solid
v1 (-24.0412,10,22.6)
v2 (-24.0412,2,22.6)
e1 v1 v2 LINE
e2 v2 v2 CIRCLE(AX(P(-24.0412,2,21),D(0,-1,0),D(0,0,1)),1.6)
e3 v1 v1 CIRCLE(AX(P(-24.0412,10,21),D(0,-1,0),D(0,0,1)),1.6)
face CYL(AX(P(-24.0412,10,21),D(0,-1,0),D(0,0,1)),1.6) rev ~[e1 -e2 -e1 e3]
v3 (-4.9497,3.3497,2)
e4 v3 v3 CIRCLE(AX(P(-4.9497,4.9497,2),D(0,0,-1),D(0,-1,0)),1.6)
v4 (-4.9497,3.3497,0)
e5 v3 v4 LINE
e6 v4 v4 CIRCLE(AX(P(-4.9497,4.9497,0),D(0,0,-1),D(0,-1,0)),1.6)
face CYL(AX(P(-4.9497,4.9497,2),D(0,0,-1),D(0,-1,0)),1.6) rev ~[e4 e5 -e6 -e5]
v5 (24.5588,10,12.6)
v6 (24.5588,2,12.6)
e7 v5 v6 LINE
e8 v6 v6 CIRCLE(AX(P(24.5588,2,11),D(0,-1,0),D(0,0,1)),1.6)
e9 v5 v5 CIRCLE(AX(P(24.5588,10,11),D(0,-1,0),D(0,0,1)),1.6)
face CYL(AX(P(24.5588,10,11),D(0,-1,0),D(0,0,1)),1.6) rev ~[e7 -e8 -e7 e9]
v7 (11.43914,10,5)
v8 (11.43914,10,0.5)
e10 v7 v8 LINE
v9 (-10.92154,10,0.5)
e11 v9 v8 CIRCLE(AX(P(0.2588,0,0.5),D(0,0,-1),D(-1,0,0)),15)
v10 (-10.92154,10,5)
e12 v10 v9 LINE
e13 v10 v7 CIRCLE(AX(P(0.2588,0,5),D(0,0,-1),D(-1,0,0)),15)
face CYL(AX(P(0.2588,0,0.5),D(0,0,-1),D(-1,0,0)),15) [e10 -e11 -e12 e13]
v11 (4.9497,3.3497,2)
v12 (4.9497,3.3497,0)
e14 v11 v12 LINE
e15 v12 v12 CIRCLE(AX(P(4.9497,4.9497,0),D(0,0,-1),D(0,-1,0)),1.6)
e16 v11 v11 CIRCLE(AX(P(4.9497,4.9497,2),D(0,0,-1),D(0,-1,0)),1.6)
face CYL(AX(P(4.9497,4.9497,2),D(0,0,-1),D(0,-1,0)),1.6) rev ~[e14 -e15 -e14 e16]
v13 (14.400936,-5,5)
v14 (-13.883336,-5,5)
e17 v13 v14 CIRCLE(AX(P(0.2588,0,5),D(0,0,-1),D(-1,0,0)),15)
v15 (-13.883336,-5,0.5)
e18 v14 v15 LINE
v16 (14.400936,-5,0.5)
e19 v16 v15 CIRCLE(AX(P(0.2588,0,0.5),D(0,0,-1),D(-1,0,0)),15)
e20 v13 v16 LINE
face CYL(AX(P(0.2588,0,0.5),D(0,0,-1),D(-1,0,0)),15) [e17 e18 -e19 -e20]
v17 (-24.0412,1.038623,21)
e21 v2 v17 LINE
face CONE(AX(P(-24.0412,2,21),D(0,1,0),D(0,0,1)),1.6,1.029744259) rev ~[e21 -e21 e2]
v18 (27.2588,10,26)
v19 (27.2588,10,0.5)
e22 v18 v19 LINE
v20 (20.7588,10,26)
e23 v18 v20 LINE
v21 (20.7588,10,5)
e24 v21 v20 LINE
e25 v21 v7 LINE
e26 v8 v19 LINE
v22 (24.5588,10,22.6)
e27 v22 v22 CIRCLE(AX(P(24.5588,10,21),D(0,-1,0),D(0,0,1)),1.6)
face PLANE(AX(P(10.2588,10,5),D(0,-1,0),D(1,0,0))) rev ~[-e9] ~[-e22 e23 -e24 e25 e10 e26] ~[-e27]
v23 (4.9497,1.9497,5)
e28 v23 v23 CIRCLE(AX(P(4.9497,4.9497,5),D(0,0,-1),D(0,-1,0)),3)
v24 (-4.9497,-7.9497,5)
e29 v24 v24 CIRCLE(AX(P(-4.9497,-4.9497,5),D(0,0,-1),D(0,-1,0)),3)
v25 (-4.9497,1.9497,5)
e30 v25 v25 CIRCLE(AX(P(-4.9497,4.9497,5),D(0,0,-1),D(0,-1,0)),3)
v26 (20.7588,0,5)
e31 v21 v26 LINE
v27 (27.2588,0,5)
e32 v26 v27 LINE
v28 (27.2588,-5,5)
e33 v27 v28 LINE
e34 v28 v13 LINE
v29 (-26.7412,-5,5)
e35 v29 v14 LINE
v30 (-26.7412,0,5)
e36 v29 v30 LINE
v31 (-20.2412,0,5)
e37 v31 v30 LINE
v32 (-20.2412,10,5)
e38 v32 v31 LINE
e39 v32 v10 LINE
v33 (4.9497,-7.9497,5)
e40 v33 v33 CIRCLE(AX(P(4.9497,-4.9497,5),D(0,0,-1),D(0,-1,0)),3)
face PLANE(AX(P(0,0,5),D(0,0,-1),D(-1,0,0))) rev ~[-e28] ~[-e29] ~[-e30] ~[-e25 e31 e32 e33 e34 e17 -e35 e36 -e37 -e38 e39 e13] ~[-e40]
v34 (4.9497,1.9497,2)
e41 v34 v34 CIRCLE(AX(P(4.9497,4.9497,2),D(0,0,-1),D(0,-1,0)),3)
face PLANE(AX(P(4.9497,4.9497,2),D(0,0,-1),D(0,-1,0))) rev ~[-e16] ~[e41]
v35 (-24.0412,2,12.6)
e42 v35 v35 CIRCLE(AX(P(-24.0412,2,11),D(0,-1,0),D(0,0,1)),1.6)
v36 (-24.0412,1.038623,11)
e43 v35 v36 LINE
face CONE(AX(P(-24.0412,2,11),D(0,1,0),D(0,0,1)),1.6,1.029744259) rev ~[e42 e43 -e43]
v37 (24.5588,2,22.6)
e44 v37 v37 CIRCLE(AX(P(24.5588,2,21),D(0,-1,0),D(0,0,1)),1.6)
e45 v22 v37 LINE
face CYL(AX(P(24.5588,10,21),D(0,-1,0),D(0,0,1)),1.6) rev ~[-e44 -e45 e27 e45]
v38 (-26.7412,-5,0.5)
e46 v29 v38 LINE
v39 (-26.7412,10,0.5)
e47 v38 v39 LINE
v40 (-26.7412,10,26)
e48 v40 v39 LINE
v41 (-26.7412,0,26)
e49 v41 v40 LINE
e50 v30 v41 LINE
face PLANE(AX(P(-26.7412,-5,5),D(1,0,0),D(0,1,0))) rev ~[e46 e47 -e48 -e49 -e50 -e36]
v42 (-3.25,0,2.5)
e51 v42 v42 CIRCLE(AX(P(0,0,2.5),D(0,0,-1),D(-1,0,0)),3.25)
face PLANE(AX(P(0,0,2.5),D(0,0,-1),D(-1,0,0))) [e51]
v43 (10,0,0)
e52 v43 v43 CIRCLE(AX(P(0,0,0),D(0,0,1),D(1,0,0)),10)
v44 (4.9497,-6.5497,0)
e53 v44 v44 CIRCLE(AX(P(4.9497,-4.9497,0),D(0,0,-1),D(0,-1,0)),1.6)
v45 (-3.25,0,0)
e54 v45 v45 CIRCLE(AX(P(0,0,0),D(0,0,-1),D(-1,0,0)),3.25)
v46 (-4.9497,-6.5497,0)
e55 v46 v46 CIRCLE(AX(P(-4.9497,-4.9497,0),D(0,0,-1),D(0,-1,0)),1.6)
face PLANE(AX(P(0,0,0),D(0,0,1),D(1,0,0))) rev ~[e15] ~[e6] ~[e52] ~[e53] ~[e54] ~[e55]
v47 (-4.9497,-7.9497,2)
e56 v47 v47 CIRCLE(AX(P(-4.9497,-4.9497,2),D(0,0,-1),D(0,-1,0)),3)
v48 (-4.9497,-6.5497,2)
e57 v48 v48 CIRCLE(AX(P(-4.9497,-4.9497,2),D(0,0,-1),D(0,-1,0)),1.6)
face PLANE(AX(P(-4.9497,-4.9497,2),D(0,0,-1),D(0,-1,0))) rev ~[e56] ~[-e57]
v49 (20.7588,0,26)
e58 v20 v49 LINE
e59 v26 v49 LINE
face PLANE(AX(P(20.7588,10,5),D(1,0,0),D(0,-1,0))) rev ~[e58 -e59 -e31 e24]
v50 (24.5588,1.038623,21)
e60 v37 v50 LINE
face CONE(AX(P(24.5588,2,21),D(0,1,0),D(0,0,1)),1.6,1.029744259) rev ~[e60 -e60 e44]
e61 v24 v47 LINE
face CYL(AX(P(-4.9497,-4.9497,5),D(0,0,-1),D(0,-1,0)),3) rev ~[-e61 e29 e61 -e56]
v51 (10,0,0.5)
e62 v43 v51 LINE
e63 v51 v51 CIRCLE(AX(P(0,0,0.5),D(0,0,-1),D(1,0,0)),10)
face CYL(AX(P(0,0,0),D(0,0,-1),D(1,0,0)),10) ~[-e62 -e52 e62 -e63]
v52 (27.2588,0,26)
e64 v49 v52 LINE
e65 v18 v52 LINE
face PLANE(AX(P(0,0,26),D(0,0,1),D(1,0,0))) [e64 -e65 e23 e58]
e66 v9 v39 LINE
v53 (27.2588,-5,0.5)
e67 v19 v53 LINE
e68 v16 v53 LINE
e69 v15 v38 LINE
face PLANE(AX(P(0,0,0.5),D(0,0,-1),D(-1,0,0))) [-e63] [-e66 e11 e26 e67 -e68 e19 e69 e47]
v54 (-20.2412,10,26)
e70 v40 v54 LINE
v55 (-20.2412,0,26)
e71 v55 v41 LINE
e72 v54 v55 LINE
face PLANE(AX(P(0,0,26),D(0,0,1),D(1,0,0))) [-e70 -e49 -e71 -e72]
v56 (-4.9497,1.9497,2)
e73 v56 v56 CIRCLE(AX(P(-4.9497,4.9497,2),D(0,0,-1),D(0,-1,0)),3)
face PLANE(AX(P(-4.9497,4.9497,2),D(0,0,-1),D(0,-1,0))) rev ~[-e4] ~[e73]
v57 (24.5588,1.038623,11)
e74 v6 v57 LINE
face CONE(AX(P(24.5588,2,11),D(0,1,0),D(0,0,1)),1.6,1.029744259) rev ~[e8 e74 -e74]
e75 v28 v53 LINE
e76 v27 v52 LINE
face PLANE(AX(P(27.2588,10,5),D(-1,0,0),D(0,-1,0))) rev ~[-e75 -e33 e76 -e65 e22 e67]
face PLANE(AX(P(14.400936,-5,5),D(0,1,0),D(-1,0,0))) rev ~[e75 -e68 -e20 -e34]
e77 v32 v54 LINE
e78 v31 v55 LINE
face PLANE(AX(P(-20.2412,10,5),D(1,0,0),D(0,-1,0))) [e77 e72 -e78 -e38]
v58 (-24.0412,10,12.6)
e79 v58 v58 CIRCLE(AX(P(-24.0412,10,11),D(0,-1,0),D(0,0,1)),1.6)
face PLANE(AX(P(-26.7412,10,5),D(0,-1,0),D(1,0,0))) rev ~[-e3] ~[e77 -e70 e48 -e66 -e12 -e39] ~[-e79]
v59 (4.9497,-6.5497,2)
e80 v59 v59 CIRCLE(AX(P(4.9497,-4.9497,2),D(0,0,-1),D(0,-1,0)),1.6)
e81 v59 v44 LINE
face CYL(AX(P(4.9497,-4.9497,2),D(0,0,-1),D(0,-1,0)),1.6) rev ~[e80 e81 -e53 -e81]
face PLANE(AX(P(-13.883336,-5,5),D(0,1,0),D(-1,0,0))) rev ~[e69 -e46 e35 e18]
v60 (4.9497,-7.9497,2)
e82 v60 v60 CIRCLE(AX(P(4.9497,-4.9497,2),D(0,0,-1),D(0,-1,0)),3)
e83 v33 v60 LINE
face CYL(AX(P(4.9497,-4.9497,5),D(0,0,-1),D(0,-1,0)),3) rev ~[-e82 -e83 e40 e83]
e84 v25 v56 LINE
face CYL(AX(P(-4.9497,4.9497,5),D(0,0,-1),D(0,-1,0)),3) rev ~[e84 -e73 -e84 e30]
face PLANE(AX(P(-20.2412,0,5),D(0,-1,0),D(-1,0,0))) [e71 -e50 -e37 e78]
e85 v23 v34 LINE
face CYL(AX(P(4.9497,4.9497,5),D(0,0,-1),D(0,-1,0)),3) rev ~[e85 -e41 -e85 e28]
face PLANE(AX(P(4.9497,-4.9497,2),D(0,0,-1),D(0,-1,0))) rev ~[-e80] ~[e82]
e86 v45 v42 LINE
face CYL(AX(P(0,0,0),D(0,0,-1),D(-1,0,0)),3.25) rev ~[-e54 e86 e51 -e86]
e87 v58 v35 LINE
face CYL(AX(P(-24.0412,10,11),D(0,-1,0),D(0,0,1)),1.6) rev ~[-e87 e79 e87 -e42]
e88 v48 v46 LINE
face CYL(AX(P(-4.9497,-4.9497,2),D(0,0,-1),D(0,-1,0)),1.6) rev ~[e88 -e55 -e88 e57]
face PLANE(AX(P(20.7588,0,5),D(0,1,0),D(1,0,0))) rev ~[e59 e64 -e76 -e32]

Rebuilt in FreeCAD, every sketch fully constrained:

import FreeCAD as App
import Part
import Sketcher
from FreeCAD import Vector
Q = App.Units.Quantity

doc = App.newDocument("Part")
body = doc.addObject("PartDesign::Body", "Body")

# Sketch on XY plane
sketch1 = body.newObject("Sketcher::SketchObject", "Sketch")
sketch1.AttachmentSupport = (doc.getObject("XY_Plane"), [""])
sketch1.MapMode = "FlatFace"
sketch1.addGeometry(Part.Circle(Vector(0, 0, 0), Vector(0, 0, 1), 10), False)
sketch1.addConstraint([
    Sketcher.Constraint("Coincident", 0, 3, -1, 1),
    Sketcher.Constraint("Diameter", 0, Q("20 mm")),
])
pad1 = body.newObject("PartDesign::Pad", "Pad")
pad1.Profile = sketch1
pad1.Length = 5

# Sketch on XY plane
sketch2 = body.newObject("Sketcher::SketchObject", "Sketch001")
sketch2.AttachmentSupport = (doc.getObject("XY_Plane"), [""])
sketch2.MapMode = "FlatFace"
sketch2.AttachmentOffset = App.Placement(Vector(0, 0, 0.5), App.Rotation())
sketch2.addGeometry(Part.Circle(Vector(0, 0, 0), Vector(0, 0, 1), 15), False)
sketch2.addConstraint([
    Sketcher.Constraint("PointOnObject", 0, 3, -1),
    Sketcher.Constraint("Diameter", 0, Q("30 mm")),
    Sketcher.Constraint("DistanceX", -1, 1, 0, 3, Q("0.2588 mm")),
])
pad2 = body.newObject("PartDesign::Pad", "Pad001")
pad2.Profile = sketch2
pad2.Length = 4.5

# Sketch on XY plane
sketch3 = body.newObject("Sketcher::SketchObject", "Sketch002")
sketch3.AttachmentSupport = (doc.getObject("XY_Plane"), [""])
sketch3.MapMode = "FlatFace"
sketch3.AttachmentOffset = App.Placement(Vector(0, 0, 5), App.Rotation())
sketch3.addGeometry([
    Part.Circle(Vector(4.9, 4.9, 0), Vector(0, 0, 1), 1.6),
    Part.Circle(Vector(-4.9, 4.9, 0), Vector(0, 0, 1), 1.6),
    Part.Circle(Vector(-4.9, -4.9, 0), Vector(0, 0, 1), 1.6),
    Part.Circle(Vector(4.9, -4.9, 0), Vector(0, 0, 1), 1.6),
], False)
sketch3.addConstraint([
    Sketcher.Constraint("Equal", 0, 1),
    Sketcher.Constraint("Equal", 1, 2),
    Sketcher.Constraint("Equal", 2, 3),
    Sketcher.Constraint("Symmetric", 0, 3, 2, 3, -1, 1),
    Sketcher.Constraint("Symmetric", 1, 3, 3, 3, -1, 1),
    Sketcher.Constraint("Symmetric", 0, 3, 1, 3, -2),
    Sketcher.Constraint("Diameter", 0, Q("3.2 mm")),
    Sketcher.Constraint("DistanceX", -1, 1, 0, 3, Q("4.9497 mm")),
    Sketcher.Constraint("DistanceY", -1, 1, 0, 3, Q("4.9497 mm")),
])
doc.recompute()
hole = body.newObject("PartDesign::Hole", "Hole")
hole.Profile = sketch3
hole.ThreadType = "None"
hole.Diameter = 3.2
hole.DepthType = "Dimension"
hole.Depth = 8
hole.DrillPoint = "Angled"
hole.DrillPointAngle = 118
hole.HoleCutType = "Counterbore"
hole.HoleCutDiameter = 6
hole.HoleCutDepth = 3

# Sketch on XY plane
sketch4 = body.newObject("Sketcher::SketchObject", "Sketch003")
sketch4.AttachmentSupport = (doc.getObject("XY_Plane"), [""])
sketch4.MapMode = "FlatFace"
sketch4.AttachmentOffset = App.Placement(Vector(0, 0, 5), App.Rotation())
sketch4.addGeometry([
    Part.LineSegment(Vector(-27, 10, 0), Vector(-27, -5, 0)),  # 0
    Part.LineSegment(Vector(-27, -5, 0), Vector(-10, -5, 0)),  # 1
    Part.LineSegment(Vector(-10, -5, 0), Vector(-10, 10, 0)),  # 2
    Part.LineSegment(Vector(-10, 10, 0), Vector(-27, 10, 0)),  # 3
    Part.LineSegment(Vector(10, -5, 0), Vector(27, -5, 0)),  # 4
    Part.LineSegment(Vector(27, -5, 0), Vector(27, 10, 0)),  # 5
    Part.LineSegment(Vector(27, 10, 0), Vector(10, 10, 0)),  # 6
    Part.LineSegment(Vector(10, 10, 0), Vector(10, -5, 0)),  # 7
], False)
sketch4.addConstraint([
    Sketcher.Constraint("Coincident", 0, 2, 1, 1),
    Sketcher.Constraint("Coincident", 1, 2, 2, 1),
    Sketcher.Constraint("Coincident", 2, 2, 3, 1),
    Sketcher.Constraint("Coincident", 3, 2, 0, 1),
    Sketcher.Constraint("Coincident", 4, 2, 5, 1),
    Sketcher.Constraint("Coincident", 5, 2, 6, 1),
    Sketcher.Constraint("Coincident", 6, 2, 7, 1),
    Sketcher.Constraint("Coincident", 7, 2, 4, 1),
    Sketcher.Constraint("Vertical", 0),
    Sketcher.Constraint("Horizontal", 1),
    Sketcher.Constraint("Vertical", 2),
    Sketcher.Constraint("Horizontal", 3),
    Sketcher.Constraint("Horizontal", 4),
    Sketcher.Constraint("Vertical", 5),
    Sketcher.Constraint("Horizontal", 6),
    Sketcher.Constraint("Vertical", 7),
    Sketcher.Constraint("Horizontal", 1, 2, 4, 2),
    Sketcher.Constraint("Horizontal", 3, 2, 5, 2),
    Sketcher.Constraint("Equal", 3, 4),
    Sketcher.Constraint("DistanceX", 1, 1, 1, 2, Q("17 mm")),
    Sketcher.Constraint("DistanceY", 0, 2, 0, 1, Q("15 mm")),
    Sketcher.Constraint("DistanceY", -1, 1, 2, 2, Q("10 mm")),
    Sketcher.Constraint("DistanceX", 1, 2, 4, 2, Q("37 mm")),
    Sketcher.Constraint("DistanceX", 0, 2, -1, 1, Q("26.7412 mm")),
])
pad3 = body.newObject("PartDesign::Pad", "Pad002")
pad3.Profile = sketch4
pad3.Length = 4.5
pad3.Reversed = True

# Sketch on XY plane
sketch5 = body.newObject("Sketcher::SketchObject", "Sketch004")
sketch5.AttachmentSupport = (doc.getObject("XY_Plane"), [""])
sketch5.MapMode = "FlatFace"
sketch5.AttachmentOffset = App.Placement(Vector(0, 0, 5), App.Rotation())
sketch5.addGeometry([
    Part.LineSegment(Vector(-20, 10, 0), Vector(-27, 10, 0)),  # 0
    Part.LineSegment(Vector(-27, 10, 0), Vector(-27, 0, 0)),  # 1
    Part.LineSegment(Vector(-27, 0, 0), Vector(-20, 0, 0)),  # 2
    Part.LineSegment(Vector(-20, 0, 0), Vector(-20, 10, 0)),  # 3
    Part.LineSegment(Vector(27, 0, 0), Vector(27, 10, 0)),  # 4
    Part.LineSegment(Vector(27, 10, 0), Vector(21, 10, 0)),  # 5
    Part.LineSegment(Vector(21, 10, 0), Vector(21, 0, 0)),  # 6
    Part.LineSegment(Vector(21, 0, 0), Vector(27, 0, 0)),  # 7
], False)
sketch5.addConstraint([
    Sketcher.Constraint("Coincident", 0, 2, 1, 1),
    Sketcher.Constraint("Coincident", 1, 2, 2, 1),
    Sketcher.Constraint("Coincident", 2, 2, 3, 1),
    Sketcher.Constraint("Coincident", 3, 2, 0, 1),
    Sketcher.Constraint("Coincident", 4, 2, 5, 1),
    Sketcher.Constraint("Coincident", 5, 2, 6, 1),
    Sketcher.Constraint("Coincident", 6, 2, 7, 1),
    Sketcher.Constraint("Coincident", 7, 2, 4, 1),
    Sketcher.Constraint("Horizontal", 0),
    Sketcher.Constraint("Vertical", 1),
    Sketcher.Constraint("Horizontal", 2),
    Sketcher.Constraint("Vertical", 3),
    Sketcher.Constraint("Vertical", 4),
    Sketcher.Constraint("Horizontal", 5),
    Sketcher.Constraint("Vertical", 6),
    Sketcher.Constraint("Horizontal", 7),
    Sketcher.Constraint("PointOnObject", 1, 2, -1),
    Sketcher.Constraint("PointOnObject", 6, 2, -1),
    Sketcher.Constraint("Horizontal", 3, 2, 4, 2),
    Sketcher.Constraint("Equal", 2, 5),
    Sketcher.Constraint("DistanceY", 1, 2, 1, 1, Q("10 mm")),
    Sketcher.Constraint("DistanceX", 3, 2, 5, 2, Q("41 mm")),
    Sketcher.Constraint("DistanceX", 0, 2, 0, 1, Q("6.5 mm")),
    Sketcher.Constraint("DistanceX", 0, 2, -1, 1, Q("26.7412 mm")),
])
pad4 = body.newObject("PartDesign::Pad", "Pad003")
pad4.Profile = sketch5
pad4.Length = 21

# Sketch on XZ plane
sketch6 = body.newObject("Sketcher::SketchObject", "Sketch005")
sketch6.AttachmentSupport = (doc.getObject("XZ_Plane"), [""])
sketch6.MapMode = "FlatFace"
sketch6.AttachmentOffset = App.Placement(Vector(0, 0, -10), App.Rotation())
sketch6.addGeometry([
    Part.Circle(Vector(-24, 21, 0), Vector(0, 0, 1), 1.6),
    Part.Circle(Vector(-24, 11, 0), Vector(0, 0, 1), 1.6),
    Part.Circle(Vector(24.6, 21, 0), Vector(0, 0, 1), 1.6),
    Part.Circle(Vector(24.6, 11, 0), Vector(0, 0, 1), 1.6),
], False)
sketch6.addConstraint([
    Sketcher.Constraint("Equal", 0, 1),
    Sketcher.Constraint("Equal", 1, 2),
    Sketcher.Constraint("Equal", 2, 3),
    Sketcher.Constraint("Horizontal", 0, 3, 2, 3),
    Sketcher.Constraint("Horizontal", 1, 3, 3, 3),
    Sketcher.Constraint("Vertical", 0, 3, 1, 3),
    Sketcher.Constraint("Vertical", 2, 3, 3, 3),
    Sketcher.Constraint("Diameter", 0, Q("3.2 mm")),
    Sketcher.Constraint("DistanceY", -1, 1, 0, 3, Q("21 mm")),
    Sketcher.Constraint("DistanceY", -1, 1, 1, 3, Q("11 mm")),
    Sketcher.Constraint("DistanceX", 0, 3, 2, 3, Q("48.6 mm")),
    Sketcher.Constraint("DistanceX", 0, 3, -1, 1, Q("24.0412 mm")),
])
doc.recompute()
hole2 = body.newObject("PartDesign::Hole", "Hole001")
hole2.Profile = sketch6
hole2.ThreadType = "None"
hole2.Diameter = 3.2
hole2.DepthType = "Dimension"
hole2.Depth = 8
hole2.DrillPoint = "Angled"
hole2.DrillPointAngle = 118
hole2.Reversed = True

# Sketch on XY plane
sketch7 = body.newObject("Sketcher::SketchObject", "Sketch006")
sketch7.AttachmentSupport = (doc.getObject("XY_Plane"), [""])
sketch7.MapMode = "FlatFace"
sketch7.addGeometry(Part.Circle(Vector(0, 0, 0), Vector(0, 0, 1), 3.2), False)
sketch7.addConstraint([
    Sketcher.Constraint("Coincident", 0, 3, -1, 1),
    Sketcher.Constraint("Diameter", 0, Q("6.5 mm")),
])
pocket1 = body.newObject("PartDesign::Pocket", "Pocket")
pocket1.Profile = sketch7
pocket1.Length = 2.5
pocket1.Reversed = True

doc.recompute()
